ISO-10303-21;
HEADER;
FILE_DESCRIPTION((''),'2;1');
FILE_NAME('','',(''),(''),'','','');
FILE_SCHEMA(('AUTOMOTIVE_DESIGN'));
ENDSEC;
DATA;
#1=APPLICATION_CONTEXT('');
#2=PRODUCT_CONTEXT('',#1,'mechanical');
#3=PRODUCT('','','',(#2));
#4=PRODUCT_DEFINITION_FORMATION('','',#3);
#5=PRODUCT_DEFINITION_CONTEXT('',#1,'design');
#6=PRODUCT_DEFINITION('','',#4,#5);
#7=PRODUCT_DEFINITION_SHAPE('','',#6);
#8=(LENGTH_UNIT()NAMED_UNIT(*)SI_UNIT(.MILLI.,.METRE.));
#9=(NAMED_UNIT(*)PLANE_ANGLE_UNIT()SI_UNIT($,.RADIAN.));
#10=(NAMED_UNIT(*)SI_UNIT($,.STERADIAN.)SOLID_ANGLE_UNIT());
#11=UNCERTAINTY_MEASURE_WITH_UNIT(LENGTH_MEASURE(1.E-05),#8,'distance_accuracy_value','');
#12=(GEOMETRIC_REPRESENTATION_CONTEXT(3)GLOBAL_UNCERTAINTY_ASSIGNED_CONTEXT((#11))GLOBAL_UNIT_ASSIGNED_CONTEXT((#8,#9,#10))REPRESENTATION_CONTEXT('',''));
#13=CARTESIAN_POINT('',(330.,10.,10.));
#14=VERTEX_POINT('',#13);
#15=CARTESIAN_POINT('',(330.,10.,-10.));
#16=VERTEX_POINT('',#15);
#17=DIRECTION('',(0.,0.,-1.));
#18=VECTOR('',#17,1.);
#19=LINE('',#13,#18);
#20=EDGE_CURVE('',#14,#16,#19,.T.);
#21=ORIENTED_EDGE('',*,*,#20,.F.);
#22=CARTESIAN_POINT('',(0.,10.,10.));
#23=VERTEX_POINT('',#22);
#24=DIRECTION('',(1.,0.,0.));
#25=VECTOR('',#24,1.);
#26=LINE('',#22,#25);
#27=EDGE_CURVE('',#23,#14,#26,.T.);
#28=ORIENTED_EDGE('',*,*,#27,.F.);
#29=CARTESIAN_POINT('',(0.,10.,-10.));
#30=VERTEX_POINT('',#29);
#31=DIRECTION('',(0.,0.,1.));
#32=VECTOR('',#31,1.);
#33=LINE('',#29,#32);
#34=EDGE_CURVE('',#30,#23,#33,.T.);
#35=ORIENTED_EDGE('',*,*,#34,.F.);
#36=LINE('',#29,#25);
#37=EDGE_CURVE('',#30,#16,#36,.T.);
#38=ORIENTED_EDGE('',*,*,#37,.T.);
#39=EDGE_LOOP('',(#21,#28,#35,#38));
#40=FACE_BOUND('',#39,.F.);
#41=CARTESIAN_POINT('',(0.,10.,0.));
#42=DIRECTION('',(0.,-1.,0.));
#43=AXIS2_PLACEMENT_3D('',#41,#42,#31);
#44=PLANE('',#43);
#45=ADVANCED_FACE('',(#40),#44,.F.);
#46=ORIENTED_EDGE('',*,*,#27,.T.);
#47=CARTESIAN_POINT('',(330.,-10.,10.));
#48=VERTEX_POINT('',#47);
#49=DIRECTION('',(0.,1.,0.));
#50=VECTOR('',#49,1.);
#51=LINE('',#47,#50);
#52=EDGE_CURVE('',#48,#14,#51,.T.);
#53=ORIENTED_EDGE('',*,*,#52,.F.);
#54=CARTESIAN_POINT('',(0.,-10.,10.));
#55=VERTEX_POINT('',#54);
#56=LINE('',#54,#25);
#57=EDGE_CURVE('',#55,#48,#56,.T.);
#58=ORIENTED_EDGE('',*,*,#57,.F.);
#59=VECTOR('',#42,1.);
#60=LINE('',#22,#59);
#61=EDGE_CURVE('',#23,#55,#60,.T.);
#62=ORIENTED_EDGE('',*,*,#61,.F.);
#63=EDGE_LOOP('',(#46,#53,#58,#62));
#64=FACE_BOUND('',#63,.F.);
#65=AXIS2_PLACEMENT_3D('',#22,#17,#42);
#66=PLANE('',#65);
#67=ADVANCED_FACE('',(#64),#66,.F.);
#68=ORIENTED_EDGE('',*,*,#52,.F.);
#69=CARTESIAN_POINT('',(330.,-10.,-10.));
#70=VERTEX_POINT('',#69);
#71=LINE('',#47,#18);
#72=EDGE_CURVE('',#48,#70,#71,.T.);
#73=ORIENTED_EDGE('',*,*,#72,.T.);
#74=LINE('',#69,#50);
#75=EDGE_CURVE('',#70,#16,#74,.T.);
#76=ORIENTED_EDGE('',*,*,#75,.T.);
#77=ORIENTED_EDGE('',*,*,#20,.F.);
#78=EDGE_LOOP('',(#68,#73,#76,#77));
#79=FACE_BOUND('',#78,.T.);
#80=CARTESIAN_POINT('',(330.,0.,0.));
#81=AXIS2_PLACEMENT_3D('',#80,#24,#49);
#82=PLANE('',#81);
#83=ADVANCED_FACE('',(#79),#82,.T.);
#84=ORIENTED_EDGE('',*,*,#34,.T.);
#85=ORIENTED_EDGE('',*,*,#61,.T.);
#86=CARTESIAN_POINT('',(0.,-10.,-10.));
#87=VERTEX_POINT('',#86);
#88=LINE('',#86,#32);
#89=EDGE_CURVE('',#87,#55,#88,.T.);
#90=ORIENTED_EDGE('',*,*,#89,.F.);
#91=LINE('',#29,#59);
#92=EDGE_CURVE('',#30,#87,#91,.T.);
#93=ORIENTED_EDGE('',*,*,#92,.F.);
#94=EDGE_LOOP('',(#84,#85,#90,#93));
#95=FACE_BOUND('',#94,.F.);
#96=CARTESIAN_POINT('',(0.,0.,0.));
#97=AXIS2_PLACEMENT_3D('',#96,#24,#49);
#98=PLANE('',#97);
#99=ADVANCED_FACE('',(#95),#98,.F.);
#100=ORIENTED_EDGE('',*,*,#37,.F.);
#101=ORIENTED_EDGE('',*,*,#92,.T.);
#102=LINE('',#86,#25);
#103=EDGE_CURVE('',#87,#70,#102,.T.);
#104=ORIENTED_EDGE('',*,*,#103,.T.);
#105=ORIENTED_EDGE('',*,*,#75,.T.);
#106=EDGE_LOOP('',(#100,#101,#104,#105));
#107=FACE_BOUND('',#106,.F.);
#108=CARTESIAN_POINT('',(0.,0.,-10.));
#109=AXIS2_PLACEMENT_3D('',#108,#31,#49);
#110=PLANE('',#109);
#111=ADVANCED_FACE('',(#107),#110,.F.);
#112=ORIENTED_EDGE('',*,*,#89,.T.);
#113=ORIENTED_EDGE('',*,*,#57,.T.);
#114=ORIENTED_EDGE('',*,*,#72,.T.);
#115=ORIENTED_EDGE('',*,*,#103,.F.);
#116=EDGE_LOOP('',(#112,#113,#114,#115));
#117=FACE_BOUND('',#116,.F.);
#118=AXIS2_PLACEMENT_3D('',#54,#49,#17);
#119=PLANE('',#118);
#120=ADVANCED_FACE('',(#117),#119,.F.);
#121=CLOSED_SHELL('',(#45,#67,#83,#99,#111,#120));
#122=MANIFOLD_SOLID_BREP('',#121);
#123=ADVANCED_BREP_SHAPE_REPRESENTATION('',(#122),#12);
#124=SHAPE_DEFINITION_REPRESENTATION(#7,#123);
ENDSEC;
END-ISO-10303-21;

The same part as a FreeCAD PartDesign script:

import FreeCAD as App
import Part
import Sketcher
from FreeCAD import Vector
Q = App.Units.Quantity

doc = App.newDocument("Part")
body = doc.addObject("PartDesign::Body", "Body")

# Sketch on YZ plane
sketch1 = doc.addObject("Sketcher::SketchObject", "Sketch")
body.addObject(sketch1)
sketch1.AttachmentSupport = (doc.YZ_Plane, [""])
sketch1.MapMode = "FlatFace"
sketch1.addGeometry(Part.LineSegment(Vector(10, 10, 0), Vector(-10, 10, 0)), False)
sketch1.addGeometry(Part.LineSegment(Vector(-10, 10, 0), Vector(-10, -10, 0)), False)
sketch1.addGeometry(Part.LineSegment(Vector(-10, -10, 0), Vector(10, -10, 0)), False)
sketch1.addGeometry(Part.LineSegment(Vector(10, -10, 0), Vector(10, 10, 0)), False)
sketch1.addConstraint(Sketcher.Constraint("Coincident", 0, 2, 1, 1))
sketch1.addConstraint(Sketcher.Constraint("Coincident", 1, 2, 2, 1))
sketch1.addConstraint(Sketcher.Constraint("Coincident", 2, 2, 3, 1))
sketch1.addConstraint(Sketcher.Constraint("Coincident", 3, 2, 0, 1))
sketch1.addConstraint(Sketcher.Constraint("Horizontal", 0))
sketch1.addConstraint(Sketcher.Constraint("Vertical", 1))
sketch1.addConstraint(Sketcher.Constraint("Horizontal", 2))
sketch1.addConstraint(Sketcher.Constraint("Vertical", 3))
sketch1.addConstraint(Sketcher.Constraint("Symmetric", 0, 2, 2, 2, -1, 1))
sketch1.addConstraint(Sketcher.Constraint("Equal", 2, 1))
sketch1.addConstraint(Sketcher.Constraint("DistanceX", 0, 2, 0, 1, Q("20 mm")))
pad1 = doc.addObject("PartDesign::Pad", "Pad")
body.addObject(pad1)
pad1.Profile = sketch1
pad1.Length = 330

doc.recompute()
